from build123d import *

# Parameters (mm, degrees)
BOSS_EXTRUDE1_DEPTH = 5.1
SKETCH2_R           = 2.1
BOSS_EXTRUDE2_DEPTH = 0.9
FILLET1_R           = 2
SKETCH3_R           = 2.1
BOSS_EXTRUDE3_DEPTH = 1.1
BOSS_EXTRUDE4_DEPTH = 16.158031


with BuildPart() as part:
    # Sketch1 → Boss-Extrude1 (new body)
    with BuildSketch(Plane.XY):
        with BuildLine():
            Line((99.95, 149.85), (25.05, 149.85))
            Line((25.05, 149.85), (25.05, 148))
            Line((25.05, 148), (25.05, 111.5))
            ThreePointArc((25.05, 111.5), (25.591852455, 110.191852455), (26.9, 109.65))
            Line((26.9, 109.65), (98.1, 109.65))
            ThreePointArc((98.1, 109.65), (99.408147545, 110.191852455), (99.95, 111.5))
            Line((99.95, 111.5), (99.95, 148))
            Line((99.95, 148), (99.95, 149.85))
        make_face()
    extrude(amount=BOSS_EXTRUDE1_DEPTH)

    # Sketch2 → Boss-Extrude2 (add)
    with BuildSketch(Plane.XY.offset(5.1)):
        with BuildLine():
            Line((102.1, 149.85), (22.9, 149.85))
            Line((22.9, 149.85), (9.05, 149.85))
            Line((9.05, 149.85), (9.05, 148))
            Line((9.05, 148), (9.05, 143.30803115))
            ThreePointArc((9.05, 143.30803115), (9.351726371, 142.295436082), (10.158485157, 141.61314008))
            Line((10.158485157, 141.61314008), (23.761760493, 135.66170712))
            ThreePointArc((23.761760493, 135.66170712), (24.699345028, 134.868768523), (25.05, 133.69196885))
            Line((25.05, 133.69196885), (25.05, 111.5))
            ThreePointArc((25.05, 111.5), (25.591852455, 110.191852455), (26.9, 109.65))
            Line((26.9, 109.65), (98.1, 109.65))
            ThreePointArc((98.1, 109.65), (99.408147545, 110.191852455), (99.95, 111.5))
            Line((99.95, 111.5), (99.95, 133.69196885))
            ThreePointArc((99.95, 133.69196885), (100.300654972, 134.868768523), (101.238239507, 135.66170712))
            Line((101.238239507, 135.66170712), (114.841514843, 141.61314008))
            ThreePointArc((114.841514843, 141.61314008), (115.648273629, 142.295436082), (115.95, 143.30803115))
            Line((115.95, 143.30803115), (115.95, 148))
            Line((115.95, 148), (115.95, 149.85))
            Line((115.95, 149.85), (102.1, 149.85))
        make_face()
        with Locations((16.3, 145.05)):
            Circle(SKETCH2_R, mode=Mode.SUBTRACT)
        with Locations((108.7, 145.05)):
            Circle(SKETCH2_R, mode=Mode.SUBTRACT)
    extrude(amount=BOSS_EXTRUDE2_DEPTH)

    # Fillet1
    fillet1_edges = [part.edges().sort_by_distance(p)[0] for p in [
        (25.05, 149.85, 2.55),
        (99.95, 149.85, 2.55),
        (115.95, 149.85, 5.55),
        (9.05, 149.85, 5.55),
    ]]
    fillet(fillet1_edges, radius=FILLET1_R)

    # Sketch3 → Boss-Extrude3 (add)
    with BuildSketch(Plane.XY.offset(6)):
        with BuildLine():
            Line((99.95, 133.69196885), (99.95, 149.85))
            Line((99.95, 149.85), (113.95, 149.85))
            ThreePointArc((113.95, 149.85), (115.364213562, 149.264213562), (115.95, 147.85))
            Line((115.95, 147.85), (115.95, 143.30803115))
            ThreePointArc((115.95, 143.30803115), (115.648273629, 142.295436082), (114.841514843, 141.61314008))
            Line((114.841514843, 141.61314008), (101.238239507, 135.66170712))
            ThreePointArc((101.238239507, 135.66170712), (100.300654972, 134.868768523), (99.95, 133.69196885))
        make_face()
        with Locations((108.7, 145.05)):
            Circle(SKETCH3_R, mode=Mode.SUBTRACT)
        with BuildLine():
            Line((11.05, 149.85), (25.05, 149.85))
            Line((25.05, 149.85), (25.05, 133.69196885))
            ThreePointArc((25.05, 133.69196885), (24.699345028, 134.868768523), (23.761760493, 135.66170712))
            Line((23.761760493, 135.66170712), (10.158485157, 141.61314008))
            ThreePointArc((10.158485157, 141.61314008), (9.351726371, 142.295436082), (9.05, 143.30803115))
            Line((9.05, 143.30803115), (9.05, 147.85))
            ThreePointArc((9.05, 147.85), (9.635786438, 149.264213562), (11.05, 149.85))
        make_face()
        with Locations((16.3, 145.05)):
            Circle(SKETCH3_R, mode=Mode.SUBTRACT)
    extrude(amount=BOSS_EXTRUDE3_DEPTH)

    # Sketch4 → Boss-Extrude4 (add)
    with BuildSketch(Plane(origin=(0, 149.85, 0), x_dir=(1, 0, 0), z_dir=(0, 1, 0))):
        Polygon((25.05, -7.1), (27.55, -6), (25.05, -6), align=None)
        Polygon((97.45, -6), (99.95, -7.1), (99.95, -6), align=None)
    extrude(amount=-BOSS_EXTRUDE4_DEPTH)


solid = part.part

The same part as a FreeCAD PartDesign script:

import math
import FreeCAD as App
import Part
import Sketcher
Q = App.Units.Quantity


def edges_at(feature, points):
    """Names of the edges that pass closest to the given points."""
    edges = feature.Shape.Edges
    near = lambda p: min(range(len(edges)), key=lambda i: edges[i].distToShape(Part.Vertex(*p))[0])
    return sorted({f"Edge{near(p) + 1}" for p in points})

doc = App.newDocument("Part")
params = doc.addObject("Spreadsheet::Sheet", "Params")
for row, (alias, value) in enumerate([
    ("sketch1_radius", "1.85 mm"),
    ("sketch1_width", "74.9 mm"),
    ("sketch1_height", "38.35 mm"),
    ("pad1_length", "5.1 mm"),
    ("sketch2_diameter", "4.2 mm"),
    ("sketch2_radius", "1.85 mm"),
    ("sketch2_radius2", "2.15 mm"),
    ("sketch2_width", "71.2 mm"),
    ("sketch2_width2", "106.9 mm"),
    ("pad2_length", "0.9 mm"),
    ("fillet_radius", "2 mm"),
    ("sketch3_radius", "2 mm"),
    ("sketch3_diameter", "4.2 mm"),
    ("sketch3_width", "14 mm"),
    ("sketch3_radius2", "2.15 mm"),
    ("sketch3_radius3", "1.85 mm"),
    ("pad3_length", "1.1 mm"),
    ("sketch4_width", "2.5 mm"),
    ("sketch4_height", "1.1 mm"),
    ("pad4_length", "16.158031 mm"),
], start=1):
    params.set(f"A{row}", alias)
    params.set(f"B{row}", "=" + value)
    params.setAlias(f"B{row}", alias)

body = doc.addObject("PartDesign::Body", "Body")

# Sketch on XY plane
sketch1 = body.newObject("Sketcher::SketchObject", "Sketch")
sketch1.AttachmentSupport = (doc.getObject("XY_Plane"), [""])
sketch1.MapMode = "FlatFace"
sketch1.addGeometry([
    Part.LineSegment(App.Vector(99.95, 149.85, 0), App.Vector(25.05, 149.85, 0)),  # 0
    Part.LineSegment(App.Vector(25.05, 149.85, 0), App.Vector(25.05, 111.5, 0)),  # 1
    Part.ArcOfCircle(Part.Circle(App.Vector(26.9, 111.5, 0), App.Vector(0, 0, 1), 1.85), math.radians(-180), math.radians(-90)),  # 2
    Part.LineSegment(App.Vector(26.9, 109.65, 0), App.Vector(98.1, 109.65, 0)),  # 3
    Part.ArcOfCircle(Part.Circle(App.Vector(98.1, 111.5, 0), App.Vector(0, 0, 1), 1.85), math.radians(-90), math.radians(0)),  # 4
    Part.LineSegment(App.Vector(99.95, 111.5, 0), App.Vector(99.95, 149.85, 0)),  # 5
], False)
sketch1.addConstraint([
    Sketcher.Constraint("Coincident", 0, 2, 1, 1),
    Sketcher.Constraint("Tangent", 1, 2, 2, 1),
    Sketcher.Constraint("Tangent", 2, 2, 3, 1),
    Sketcher.Constraint("Tangent", 3, 2, 4, 1),
    Sketcher.Constraint("Tangent", 4, 2, 5, 1),
    Sketcher.Constraint("Coincident", 5, 2, 0, 1),
    Sketcher.Constraint("Horizontal", 0),
    Sketcher.Constraint("Vertical", 1),
    Sketcher.Constraint("Horizontal", 3),
    Sketcher.Constraint("Vertical", 5),
    Sketcher.Constraint("Equal", 2, 4),
    Sketcher.Constraint("Radius", 2, Q("1.85 mm")),
    Sketcher.Constraint("DistanceX", 0, 2, 0, 1, Q("74.9 mm")),
    Sketcher.Constraint("DistanceY", 1, 2, 1, 1, Q("38.35 mm")),
    Sketcher.Constraint("DistanceX", -1, 1, 2, 3, Q("26.9 mm")),
    Sketcher.Constraint("DistanceY", -1, 1, 2, 3, Q("111.5 mm")),
])
sketch1.setExpression("Constraints[11]", "Params.sketch1_radius")
sketch1.setExpression("Constraints[12]", "Params.sketch1_width")
sketch1.setExpression("Constraints[13]", "Params.sketch1_height")
pad1 = body.newObject("PartDesign::Pad", "Pad")
pad1.Profile = sketch1
pad1.setExpression("Length", "Params.pad1_length")

# Sketch on XY plane
sketch2 = body.newObject("Sketcher::SketchObject", "Sketch001")
sketch2.AttachmentSupport = (doc.getObject("XY_Plane"), [""])
sketch2.MapMode = "FlatFace"
sketch2.AttachmentOffset = App.Placement(App.Vector(0, 0, 5.1), App.Rotation())
sketch2.addGeometry([
    Part.LineSegment(App.Vector(9.05, 149.85, 0), App.Vector(9.05, 143.308031, 0)),  # 0
    Part.ArcOfCircle(Part.Circle(App.Vector(10.9, 143.308031, 0), App.Vector(0, 0, 1), 1.85), math.radians(180), math.radians(246.370622)),  # 1
    Part.LineSegment(App.Vector(10.158485, 141.61314, 0), App.Vector(23.76176, 135.661707, 0)),  # 2
    Part.ArcOfCircle(Part.Circle(App.Vector(22.9, 133.691969, 0), App.Vector(0, 0, 1), 2.15), math.radians(0), math.radians(66.370622)),  # 3
    Part.LineSegment(App.Vector(25.05, 133.691969, 0), App.Vector(25.05, 111.5, 0)),  # 4
    Part.ArcOfCircle(Part.Circle(App.Vector(26.9, 111.5, 0), App.Vector(0, 0, 1), 1.85), math.radians(-180), math.radians(-90)),  # 5
    Part.LineSegment(App.Vector(26.9, 109.65, 0), App.Vector(98.1, 109.65, 0)),  # 6
    Part.ArcOfCircle(Part.Circle(App.Vector(98.1, 111.5, 0), App.Vector(0, 0, 1), 1.85), math.radians(-90), math.radians(0)),  # 7
    Part.LineSegment(App.Vector(99.95, 111.5, 0), App.Vector(99.95, 133.691969, 0)),  # 8
    Part.ArcOfCircle(Part.Circle(App.Vector(102.1, 133.691969, 0), App.Vector(0, 0, 1), 2.15), math.radians(113.629378), math.radians(180)),  # 9
    Part.LineSegment(App.Vector(101.23824, 135.661707, 0), App.Vector(114.841515, 141.61314, 0)),  # 10
    Part.ArcOfCircle(Part.Circle(App.Vector(114.1, 143.308031, 0), App.Vector(0, 0, 1), 1.85), math.radians(-66.370622), math.radians(0)),  # 11
    Part.LineSegment(App.Vector(115.95, 143.308031, 0), App.Vector(115.95, 149.85, 0)),  # 12
    Part.LineSegment(App.Vector(115.95, 149.85, 0), App.Vector(9.05, 149.85, 0)),  # 13
    Part.Circle(App.Vector(16.3, 145.05, 0), App.Vector(0, 0, 1), 2.1),  # 14
    Part.Circle(App.Vector(108.7, 145.05, 0), App.Vector(0, 0, 1), 2.1),  # 15
], False)
sketch2.addConstraint([
    Sketcher.Constraint("Tangent", 0, 2, 1, 1),
    Sketcher.Constraint("Tangent", 1, 2, 2, 1),
    Sketcher.Constraint("Tangent", 2, 2, 3, 2),
    Sketcher.Constraint("Tangent", 3, 1, 4, 1),
    Sketcher.Constraint("Tangent", 4, 2, 5, 1),
    Sketcher.Constraint("Tangent", 5, 2, 6, 1),
    Sketcher.Constraint("Tangent", 6, 2, 7, 1),
    Sketcher.Constraint("Tangent", 7, 2, 8, 1),
    Sketcher.Constraint("Tangent", 8, 2, 9, 2),
    Sketcher.Constraint("Tangent", 9, 1, 10, 1),
    Sketcher.Constraint("Tangent", 10, 2, 11, 1),
    Sketcher.Constraint("Tangent", 11, 2, 12, 1),
    Sketcher.Constraint("Coincident", 12, 2, 13, 1),
    Sketcher.Constraint("Coincident", 13, 2, 0, 1),
    Sketcher.Constraint("Vertical", 0),
    Sketcher.Constraint("Vertical", 4),
    Sketcher.Constraint("Horizontal", 6),
    Sketcher.Constraint("Vertical", 8),
    Sketcher.Constraint("Vertical", 12),
    Sketcher.Constraint("Horizontal", 13),
    Sketcher.Constraint("Equal", 1, 5),
    Sketcher.Constraint("Equal", 5, 7),
    Sketcher.Constraint("Equal", 3, 9),
    Sketcher.Constraint("Equal", 7, 11),
    Sketcher.Constraint("Equal", 14, 15),
    Sketcher.Constraint("Horizontal", 3, 3, 9, 3),
    Sketcher.Constraint("Horizontal", 1, 3, 11, 3),
    Sketcher.Constraint("Horizontal", 14, 3, 15, 3),
    Sketcher.Constraint("Horizontal", 2, 2, 9, 1),
    Sketcher.Constraint("Diameter", 14, Q("4.2 mm")),
    Sketcher.Constraint("Radius", 1, Q("1.85 mm")),
    Sketcher.Constraint("Radius", 3, Q("2.15 mm")),
    Sketcher.Constraint("DistanceX", 6, 1, 6, 2, Q("71.2 mm")),
    Sketcher.Constraint("DistanceX", 13, 2, 13, 1, Q("106.9 mm")),
    Sketcher.Constraint("DistanceX", -1, 1, 1, 3, Q("10.9 mm")),
    Sketcher.Constraint("DistanceY", -1, 1, 5, 3, Q("111.5 mm")),
    Sketcher.Constraint("DistanceX", -1, 1, 14, 3, Q("16.3 mm")),
    Sketcher.Constraint("DistanceX", -1, 1, 15, 3, Q("108.7 mm")),
    Sketcher.Constraint("DistanceY", 6, 2, 15, 3, Q("35.4 mm")),
    Sketcher.Constraint("DistanceY", 15, 3, 12, 2, Q("4.8 mm")),
    Sketcher.Constraint("DistanceY", 0, 2, 0, 1, Q("6.541969 mm")),
    Sketcher.Constraint("DistanceY", 4, 2, 4, 1, Q("22.191969 mm")),
])
sketch2.setExpression("Constraints[29]", "Params.sketch2_diameter")
sketch2.setExpression("Constraints[30]", "Params.sketch2_radius")
sketch2.setExpression("Constraints[31]", "Params.sketch2_radius2")
sketch2.setExpression("Constraints[32]", "Params.sketch2_width")
sketch2.setExpression("Constraints[33]", "Params.sketch2_width2")
pad2 = body.newObject("PartDesign::Pad", "Pad001")
pad2.Profile = sketch2
pad2.setExpression("Length", "Params.pad2_length")
doc.recompute()

fillet = body.newObject("PartDesign::Fillet", "Fillet")
fillet.Base = (pad2, edges_at(pad2, [
    (25.05, 149.85, 2.55),
    (99.95, 149.85, 2.55),
    (115.95, 149.85, 5.55),
    (9.05, 149.85, 5.55),
]))
fillet.setExpression("Radius", "Params.fillet_radius")

# Sketch on XY plane
sketch3 = body.newObject("Sketcher::SketchObject", "Sketch002")
sketch3.AttachmentSupport = (doc.getObject("XY_Plane"), [""])
sketch3.MapMode = "FlatFace"
sketch3.AttachmentOffset = App.Placement(App.Vector(0, 0, 6), App.Rotation())
sketch3.addGeometry([
    Part.LineSegment(App.Vector(99.95, 149.85, 0), App.Vector(99.95, 133.691969, 0)),  # 0
    Part.ArcOfCircle(Part.Circle(App.Vector(102.1, 133.691969, 0), App.Vector(0, 0, 1), 2.15), math.radians(113.629378), math.radians(180)),  # 1
    Part.LineSegment(App.Vector(101.23824, 135.661707, 0), App.Vector(114.841515, 141.61314, 0)),  # 2
    Part.ArcOfCircle(Part.Circle(App.Vector(114.1, 143.308031, 0), App.Vector(0, 0, 1), 1.85), math.radians(-66.370622), math.radians(0)),  # 3
    Part.LineSegment(App.Vector(115.95, 143.308031, 0), App.Vector(115.95, 147.85, 0)),  # 4
    Part.ArcOfCircle(Part.Circle(App.Vector(113.95, 147.85, 0), App.Vector(0, 0, 1), 2), math.radians(0), math.radians(90)),  # 5
    Part.LineSegment(App.Vector(113.95, 149.85, 0), App.Vector(99.95, 149.85, 0)),  # 6
    Part.Circle(App.Vector(108.7, 145.05, 0), App.Vector(0, 0, 1), 2.1),  # 7
    Part.LineSegment(App.Vector(25.05, 149.85, 0), App.Vector(11.05, 149.85, 0)),  # 8
    Part.ArcOfCircle(Part.Circle(App.Vector(11.05, 147.85, 0), App.Vector(0, 0, 1), 2), math.radians(90), math.radians(180)),  # 9
    Part.LineSegment(App.Vector(9.05, 147.85, 0), App.Vector(9.05, 143.308031, 0)),  # 10
    Part.ArcOfCircle(Part.Circle(App.Vector(10.9, 143.308031, 0), App.Vector(0, 0, 1), 1.85), math.radians(180), math.radians(246.370622)),  # 11
    Part.LineSegment(App.Vector(10.158485, 141.61314, 0), App.Vector(23.76176, 135.661707, 0)),  # 12
    Part.ArcOfCircle(Part.Circle(App.Vector(22.9, 133.691969, 0), App.Vector(0, 0, 1), 2.15), math.radians(0), math.radians(66.370622)),  # 13
    Part.LineSegment(App.Vector(25.05, 133.691969, 0), App.Vector(25.05, 149.85, 0)),  # 14
    Part.Circle(App.Vector(16.3, 145.05, 0), App.Vector(0, 0, 1), 2.1),  # 15
], False)
sketch3.addConstraint([
    Sketcher.Constraint("Tangent", 0, 2, 1, 2),
    Sketcher.Constraint("Tangent", 1, 1, 2, 1),
    Sketcher.Constraint("Tangent", 2, 2, 3, 1),
    Sketcher.Constraint("Tangent", 3, 2, 4, 1),
    Sketcher.Constraint("Tangent", 4, 2, 5, 1),
    Sketcher.Constraint("Tangent", 5, 2, 6, 1),
    Sketcher.Constraint("Coincident", 6, 2, 0, 1),
    Sketcher.Constraint("Tangent", 8, 2, 9, 1),
    Sketcher.Constraint("Tangent", 9, 2, 10, 1),
    Sketcher.Constraint("Tangent", 10, 2, 11, 1),
    Sketcher.Constraint("Tangent", 11, 2, 12, 1),
    Sketcher.Constraint("Tangent", 12, 2, 13, 2),
    Sketcher.Constraint("Tangent", 13, 1, 14, 1),
    Sketcher.Constraint("Coincident", 14, 2, 8, 1),
    Sketcher.Constraint("Vertical", 0),
    Sketcher.Constraint("Vertical", 4),
    Sketcher.Constraint("Horizontal", 6),
    Sketcher.Constraint("Horizontal", 8),
    Sketcher.Constraint("Vertical", 10),
    Sketcher.Constraint("Vertical", 14),
    Sketcher.Constraint("Equal", 5, 9),
    Sketcher.Constraint("Equal", 3, 11),
    Sketcher.Constraint("Equal", 1, 13),
    Sketcher.Constraint("Equal", 7, 15),
    Sketcher.Constraint("Horizontal", 5, 3, 9, 3),
    Sketcher.Constraint("Horizontal", 3, 3, 11, 3),
    Sketcher.Constraint("Horizontal", 1, 3, 13, 3),
    Sketcher.Constraint("Horizontal", 7, 3, 15, 3),
    Sketcher.Constraint("Horizontal", 2, 2, 11, 2),
    Sketcher.Constraint("Radius", 5, Q("2 mm")),
    Sketcher.Constraint("Diameter", 7, Q("4.2 mm")),
    Sketcher.Constraint("DistanceX", 6, 2, 6, 1, Q("14 mm")),
    Sketcher.Constraint("Radius", 1, Q("2.15 mm")),
    Sketcher.Constraint("Radius", 3, Q("1.85 mm")),
    Sketcher.Constraint("DistanceX", -1, 1, 1, 3, Q("102.1 mm")),
    Sketcher.Constraint("DistanceX", -1, 1, 7, 3, Q("108.7 mm")),
    Sketcher.Constraint("DistanceX", -1, 1, 11, 3, Q("10.9 mm")),
    Sketcher.Constraint("DistanceX", -1, 1, 15, 3, Q("16.3 mm")),
    Sketcher.Constraint("DistanceY", 7, 3, 5, 3, Q("2.8 mm")),
    Sketcher.Constraint("DistanceY", -1, 1, 5, 3, Q("147.85 mm")),
    Sketcher.Constraint("DistanceY", 0, 2, 0, 1, Q("16.158031 mm")),
    Sketcher.Constraint("DistanceY", 4, 1, 4, 2, Q("4.541969 mm")),
])
sketch3.setExpression("Constraints[29]", "Params.sketch3_radius")
sketch3.setExpression("Constraints[30]", "Params.sketch3_diameter")
sketch3.setExpression("Constraints[31]", "Params.sketch3_width")
sketch3.setExpression("Constraints[32]", "Params.sketch3_radius2")
sketch3.setExpression("Constraints[33]", "Params.sketch3_radius3")
pad3 = body.newObject("PartDesign::Pad", "Pad002")
pad3.Profile = sketch3
pad3.setExpression("Length", "Params.pad3_length")

# Sketch on XZ plane
sketch4 = body.newObject("Sketcher::SketchObject", "Sketch003")
sketch4.AttachmentSupport = (doc.getObject("XZ_Plane"), [""])
sketch4.MapMode = "FlatFace"
sketch4.AttachmentOffset = App.Placement(App.Vector(0, 0, -149.85), App.Rotation())
sketch4.addGeometry([
    Part.LineSegment(App.Vector(25.05, 7.1, 0), App.Vector(27.55, 6, 0)),  # 0
    Part.LineSegment(App.Vector(27.55, 6, 0), App.Vector(25.05, 6, 0)),  # 1
    Part.LineSegment(App.Vector(25.05, 6, 0), App.Vector(25.05, 7.1, 0)),  # 2
    Part.LineSegment(App.Vector(97.45, 6, 0), App.Vector(99.95, 7.1, 0)),  # 3
    Part.LineSegment(App.Vector(99.95, 7.1, 0), App.Vector(99.95, 6, 0)),  # 4
    Part.LineSegment(App.Vector(99.95, 6, 0), App.Vector(97.45, 6, 0)),  # 5
], False)
sketch4.addConstraint([
    Sketcher.Constraint("Coincident", 0, 2, 1, 1),
    Sketcher.Constraint("Coincident", 1, 2, 2, 1),
    Sketcher.Constraint("Coincident", 2, 2, 0, 1),
    Sketcher.Constraint("Coincident", 3, 2, 4, 1),
    Sketcher.Constraint("Coincident", 4, 2, 5, 1),
    Sketcher.Constraint("Coincident", 5, 2, 3, 1),
    Sketcher.Constraint("Horizontal", 1),
    Sketcher.Constraint("Vertical", 2),
    Sketcher.Constraint("Vertical", 4),
    Sketcher.Constraint("Horizontal", 5),
    Sketcher.Constraint("Horizontal", 2, 2, 3, 2),
    Sketcher.Constraint("Horizontal", 1, 2, 4, 2),
    Sketcher.Constraint("Equal", 1, 5),
    Sketcher.Constraint("DistanceX", 1, 2, 1, 1, Q("2.5 mm")),
    Sketcher.Constraint("DistanceY", 2, 1, 2, 2, Q("1.1 mm")),
    Sketcher.Constraint("DistanceY", -1, 1, 0, 2, Q("6 mm")),
    Sketcher.Constraint("DistanceX", 0, 2, 3, 2, Q("72.4 mm")),
    Sketcher.Constraint("DistanceX", -1, 1, 0, 2, Q("27.55 mm")),
])
sketch4.setExpression("Constraints[13]", "Params.sketch4_width")
sketch4.setExpression("Constraints[14]", "Params.sketch4_height")
pad4 = body.newObject("PartDesign::Pad", "Pad003")
pad4.Profile = sketch4
pad4.setExpression("Length", "Params.pad4_length")

doc.recompute()
